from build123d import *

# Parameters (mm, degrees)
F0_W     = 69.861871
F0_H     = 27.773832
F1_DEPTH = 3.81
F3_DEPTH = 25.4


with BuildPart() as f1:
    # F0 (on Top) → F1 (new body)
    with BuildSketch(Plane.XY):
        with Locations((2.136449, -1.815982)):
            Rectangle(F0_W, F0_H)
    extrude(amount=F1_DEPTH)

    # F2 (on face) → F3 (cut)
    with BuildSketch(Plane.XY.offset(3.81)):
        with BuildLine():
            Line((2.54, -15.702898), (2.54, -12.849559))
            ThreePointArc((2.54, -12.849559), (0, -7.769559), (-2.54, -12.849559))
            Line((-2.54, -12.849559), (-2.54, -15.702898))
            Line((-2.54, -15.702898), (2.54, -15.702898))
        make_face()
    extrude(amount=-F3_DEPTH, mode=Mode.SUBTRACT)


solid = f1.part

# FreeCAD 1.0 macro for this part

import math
import FreeCAD as App
import Part
import Sketcher

V = App.Vector
Q = App.Units.Quantity


def add_polygon(sketch, points):
    """Adds a closed chain of lines whose ends are joined by coincident constraints."""
    first, n = sketch.GeometryCount, len(points)
    for a, b in zip(points, points[1:] + points[:1]):
        sketch.addGeometry(Part.LineSegment(App.Vector(*a, 0), App.Vector(*b, 0)), False)
    for i in range(n):
        sketch.addConstraint(Sketcher.Constraint("Coincident", first + i, 2, first + (i + 1) % n, 1))

doc = App.newDocument("Part")
params = doc.addObject("Spreadsheet::Sheet", "Params")
for row, (alias, value) in enumerate([
    ("pad1_length", "0.15 in"),
    ("sketch2_width", "0.2 in"),
    ("sketch2_radius", "0.125 in"),
    ("pocket1_length", "1 in"),
], start=1):
    params.set(f"A{row}", alias)
    params.set(f"B{row}", "=" + value)
    params.setAlias(f"B{row}", alias)

body = doc.addObject("PartDesign::Body", "Body")

sketch1 = body.newObject("Sketcher::SketchObject", "Sketch")
sketch1.AttachmentSupport = (doc.getObject("XY_Plane"), [""])
sketch1.MapMode = "FlatFace"
add_polygon(sketch1, [(-33, 12), (-33, -16), (37, -16), (37, 12)])
sketch1.addConstraint([
    Sketcher.Constraint("Vertical", 0),
    Sketcher.Constraint("Horizontal", 1),
    Sketcher.Constraint("Vertical", 2),
    Sketcher.Constraint("Horizontal", 3),
    Sketcher.Constraint("DistanceX", 1, 1, 1, 2, Q("69.861871 mm")),
    Sketcher.Constraint("DistanceY", 0, 2, 0, 1, Q("27.773832 mm")),
    Sketcher.Constraint("DistanceX", 0, 2, -1, 1, Q("32.794486 mm")),
    Sketcher.Constraint("DistanceY", 0, 2, -1, 1, Q("15.702898 mm")),
])
pad1 = body.newObject("PartDesign::Pad", "Pad")
pad1.Profile = sketch1
pad1.setExpression("Length", "Params.pad1_length")

sketch2 = body.newObject("Sketcher::SketchObject", "Sketch001")
sketch2.AttachmentSupport = (doc.getObject("XY_Plane"), [""])
sketch2.MapMode = "FlatFace"
sketch2.AttachmentOffset = App.Placement(V(0, 0, 0.15 * 25.4), App.Rotation())
sketch2.addGeometry([
    Part.LineSegment(V(2.5, -15.7, 0), V(2.5, -12.8, 0)),
    Part.ArcOfCircle(Part.Circle(V(0, -10.9, 0), V(0, 0, 1), 3.2), math.radians(-37), math.radians(217)),
    Part.LineSegment(V(-2.5, -12.8, 0), V(-2.5, -15.7, 0)),
    Part.LineSegment(V(-2.5, -15.7, 0), V(2.5, -15.7, 0)),
], False)
sketch2.addConstraint([
    Sketcher.Constraint("Coincident", 0, 2, 1, 1),
    Sketcher.Constraint("Coincident", 1, 2, 2, 1),
    Sketcher.Constraint("Coincident", 2, 2, 3, 1),
    Sketcher.Constraint("Coincident", 3, 2, 0, 1),
    Sketcher.Constraint("Vertical", 0),
    Sketcher.Constraint("Vertical", 2),
    Sketcher.Constraint("Horizontal", 3),
    Sketcher.Constraint("Symmetric", 0, 2, 1, 2, -2),
    Sketcher.Constraint("DistanceX", 3, 1, 3, 2, Q("0.2 in")),
    Sketcher.Constraint("Radius", 1, Q("0.125 in")),
    Sketcher.Constraint("DistanceY", 0, 1, 0, 2, Q("2.853339 mm")),
    Sketcher.Constraint("DistanceY", 1, 3, -1, 1, Q("10.944559 mm")),
])
sketch2.setExpression("Constraints[8]", "Params.sketch2_width")
sketch2.setExpression("Constraints[9]", "Params.sketch2_radius")
pocket1 = body.newObject("PartDesign::Pocket", "Pocket")
pocket1.Profile = sketch2
pocket1.setExpression("Length", "Params.pocket1_length")

doc.recompute()
